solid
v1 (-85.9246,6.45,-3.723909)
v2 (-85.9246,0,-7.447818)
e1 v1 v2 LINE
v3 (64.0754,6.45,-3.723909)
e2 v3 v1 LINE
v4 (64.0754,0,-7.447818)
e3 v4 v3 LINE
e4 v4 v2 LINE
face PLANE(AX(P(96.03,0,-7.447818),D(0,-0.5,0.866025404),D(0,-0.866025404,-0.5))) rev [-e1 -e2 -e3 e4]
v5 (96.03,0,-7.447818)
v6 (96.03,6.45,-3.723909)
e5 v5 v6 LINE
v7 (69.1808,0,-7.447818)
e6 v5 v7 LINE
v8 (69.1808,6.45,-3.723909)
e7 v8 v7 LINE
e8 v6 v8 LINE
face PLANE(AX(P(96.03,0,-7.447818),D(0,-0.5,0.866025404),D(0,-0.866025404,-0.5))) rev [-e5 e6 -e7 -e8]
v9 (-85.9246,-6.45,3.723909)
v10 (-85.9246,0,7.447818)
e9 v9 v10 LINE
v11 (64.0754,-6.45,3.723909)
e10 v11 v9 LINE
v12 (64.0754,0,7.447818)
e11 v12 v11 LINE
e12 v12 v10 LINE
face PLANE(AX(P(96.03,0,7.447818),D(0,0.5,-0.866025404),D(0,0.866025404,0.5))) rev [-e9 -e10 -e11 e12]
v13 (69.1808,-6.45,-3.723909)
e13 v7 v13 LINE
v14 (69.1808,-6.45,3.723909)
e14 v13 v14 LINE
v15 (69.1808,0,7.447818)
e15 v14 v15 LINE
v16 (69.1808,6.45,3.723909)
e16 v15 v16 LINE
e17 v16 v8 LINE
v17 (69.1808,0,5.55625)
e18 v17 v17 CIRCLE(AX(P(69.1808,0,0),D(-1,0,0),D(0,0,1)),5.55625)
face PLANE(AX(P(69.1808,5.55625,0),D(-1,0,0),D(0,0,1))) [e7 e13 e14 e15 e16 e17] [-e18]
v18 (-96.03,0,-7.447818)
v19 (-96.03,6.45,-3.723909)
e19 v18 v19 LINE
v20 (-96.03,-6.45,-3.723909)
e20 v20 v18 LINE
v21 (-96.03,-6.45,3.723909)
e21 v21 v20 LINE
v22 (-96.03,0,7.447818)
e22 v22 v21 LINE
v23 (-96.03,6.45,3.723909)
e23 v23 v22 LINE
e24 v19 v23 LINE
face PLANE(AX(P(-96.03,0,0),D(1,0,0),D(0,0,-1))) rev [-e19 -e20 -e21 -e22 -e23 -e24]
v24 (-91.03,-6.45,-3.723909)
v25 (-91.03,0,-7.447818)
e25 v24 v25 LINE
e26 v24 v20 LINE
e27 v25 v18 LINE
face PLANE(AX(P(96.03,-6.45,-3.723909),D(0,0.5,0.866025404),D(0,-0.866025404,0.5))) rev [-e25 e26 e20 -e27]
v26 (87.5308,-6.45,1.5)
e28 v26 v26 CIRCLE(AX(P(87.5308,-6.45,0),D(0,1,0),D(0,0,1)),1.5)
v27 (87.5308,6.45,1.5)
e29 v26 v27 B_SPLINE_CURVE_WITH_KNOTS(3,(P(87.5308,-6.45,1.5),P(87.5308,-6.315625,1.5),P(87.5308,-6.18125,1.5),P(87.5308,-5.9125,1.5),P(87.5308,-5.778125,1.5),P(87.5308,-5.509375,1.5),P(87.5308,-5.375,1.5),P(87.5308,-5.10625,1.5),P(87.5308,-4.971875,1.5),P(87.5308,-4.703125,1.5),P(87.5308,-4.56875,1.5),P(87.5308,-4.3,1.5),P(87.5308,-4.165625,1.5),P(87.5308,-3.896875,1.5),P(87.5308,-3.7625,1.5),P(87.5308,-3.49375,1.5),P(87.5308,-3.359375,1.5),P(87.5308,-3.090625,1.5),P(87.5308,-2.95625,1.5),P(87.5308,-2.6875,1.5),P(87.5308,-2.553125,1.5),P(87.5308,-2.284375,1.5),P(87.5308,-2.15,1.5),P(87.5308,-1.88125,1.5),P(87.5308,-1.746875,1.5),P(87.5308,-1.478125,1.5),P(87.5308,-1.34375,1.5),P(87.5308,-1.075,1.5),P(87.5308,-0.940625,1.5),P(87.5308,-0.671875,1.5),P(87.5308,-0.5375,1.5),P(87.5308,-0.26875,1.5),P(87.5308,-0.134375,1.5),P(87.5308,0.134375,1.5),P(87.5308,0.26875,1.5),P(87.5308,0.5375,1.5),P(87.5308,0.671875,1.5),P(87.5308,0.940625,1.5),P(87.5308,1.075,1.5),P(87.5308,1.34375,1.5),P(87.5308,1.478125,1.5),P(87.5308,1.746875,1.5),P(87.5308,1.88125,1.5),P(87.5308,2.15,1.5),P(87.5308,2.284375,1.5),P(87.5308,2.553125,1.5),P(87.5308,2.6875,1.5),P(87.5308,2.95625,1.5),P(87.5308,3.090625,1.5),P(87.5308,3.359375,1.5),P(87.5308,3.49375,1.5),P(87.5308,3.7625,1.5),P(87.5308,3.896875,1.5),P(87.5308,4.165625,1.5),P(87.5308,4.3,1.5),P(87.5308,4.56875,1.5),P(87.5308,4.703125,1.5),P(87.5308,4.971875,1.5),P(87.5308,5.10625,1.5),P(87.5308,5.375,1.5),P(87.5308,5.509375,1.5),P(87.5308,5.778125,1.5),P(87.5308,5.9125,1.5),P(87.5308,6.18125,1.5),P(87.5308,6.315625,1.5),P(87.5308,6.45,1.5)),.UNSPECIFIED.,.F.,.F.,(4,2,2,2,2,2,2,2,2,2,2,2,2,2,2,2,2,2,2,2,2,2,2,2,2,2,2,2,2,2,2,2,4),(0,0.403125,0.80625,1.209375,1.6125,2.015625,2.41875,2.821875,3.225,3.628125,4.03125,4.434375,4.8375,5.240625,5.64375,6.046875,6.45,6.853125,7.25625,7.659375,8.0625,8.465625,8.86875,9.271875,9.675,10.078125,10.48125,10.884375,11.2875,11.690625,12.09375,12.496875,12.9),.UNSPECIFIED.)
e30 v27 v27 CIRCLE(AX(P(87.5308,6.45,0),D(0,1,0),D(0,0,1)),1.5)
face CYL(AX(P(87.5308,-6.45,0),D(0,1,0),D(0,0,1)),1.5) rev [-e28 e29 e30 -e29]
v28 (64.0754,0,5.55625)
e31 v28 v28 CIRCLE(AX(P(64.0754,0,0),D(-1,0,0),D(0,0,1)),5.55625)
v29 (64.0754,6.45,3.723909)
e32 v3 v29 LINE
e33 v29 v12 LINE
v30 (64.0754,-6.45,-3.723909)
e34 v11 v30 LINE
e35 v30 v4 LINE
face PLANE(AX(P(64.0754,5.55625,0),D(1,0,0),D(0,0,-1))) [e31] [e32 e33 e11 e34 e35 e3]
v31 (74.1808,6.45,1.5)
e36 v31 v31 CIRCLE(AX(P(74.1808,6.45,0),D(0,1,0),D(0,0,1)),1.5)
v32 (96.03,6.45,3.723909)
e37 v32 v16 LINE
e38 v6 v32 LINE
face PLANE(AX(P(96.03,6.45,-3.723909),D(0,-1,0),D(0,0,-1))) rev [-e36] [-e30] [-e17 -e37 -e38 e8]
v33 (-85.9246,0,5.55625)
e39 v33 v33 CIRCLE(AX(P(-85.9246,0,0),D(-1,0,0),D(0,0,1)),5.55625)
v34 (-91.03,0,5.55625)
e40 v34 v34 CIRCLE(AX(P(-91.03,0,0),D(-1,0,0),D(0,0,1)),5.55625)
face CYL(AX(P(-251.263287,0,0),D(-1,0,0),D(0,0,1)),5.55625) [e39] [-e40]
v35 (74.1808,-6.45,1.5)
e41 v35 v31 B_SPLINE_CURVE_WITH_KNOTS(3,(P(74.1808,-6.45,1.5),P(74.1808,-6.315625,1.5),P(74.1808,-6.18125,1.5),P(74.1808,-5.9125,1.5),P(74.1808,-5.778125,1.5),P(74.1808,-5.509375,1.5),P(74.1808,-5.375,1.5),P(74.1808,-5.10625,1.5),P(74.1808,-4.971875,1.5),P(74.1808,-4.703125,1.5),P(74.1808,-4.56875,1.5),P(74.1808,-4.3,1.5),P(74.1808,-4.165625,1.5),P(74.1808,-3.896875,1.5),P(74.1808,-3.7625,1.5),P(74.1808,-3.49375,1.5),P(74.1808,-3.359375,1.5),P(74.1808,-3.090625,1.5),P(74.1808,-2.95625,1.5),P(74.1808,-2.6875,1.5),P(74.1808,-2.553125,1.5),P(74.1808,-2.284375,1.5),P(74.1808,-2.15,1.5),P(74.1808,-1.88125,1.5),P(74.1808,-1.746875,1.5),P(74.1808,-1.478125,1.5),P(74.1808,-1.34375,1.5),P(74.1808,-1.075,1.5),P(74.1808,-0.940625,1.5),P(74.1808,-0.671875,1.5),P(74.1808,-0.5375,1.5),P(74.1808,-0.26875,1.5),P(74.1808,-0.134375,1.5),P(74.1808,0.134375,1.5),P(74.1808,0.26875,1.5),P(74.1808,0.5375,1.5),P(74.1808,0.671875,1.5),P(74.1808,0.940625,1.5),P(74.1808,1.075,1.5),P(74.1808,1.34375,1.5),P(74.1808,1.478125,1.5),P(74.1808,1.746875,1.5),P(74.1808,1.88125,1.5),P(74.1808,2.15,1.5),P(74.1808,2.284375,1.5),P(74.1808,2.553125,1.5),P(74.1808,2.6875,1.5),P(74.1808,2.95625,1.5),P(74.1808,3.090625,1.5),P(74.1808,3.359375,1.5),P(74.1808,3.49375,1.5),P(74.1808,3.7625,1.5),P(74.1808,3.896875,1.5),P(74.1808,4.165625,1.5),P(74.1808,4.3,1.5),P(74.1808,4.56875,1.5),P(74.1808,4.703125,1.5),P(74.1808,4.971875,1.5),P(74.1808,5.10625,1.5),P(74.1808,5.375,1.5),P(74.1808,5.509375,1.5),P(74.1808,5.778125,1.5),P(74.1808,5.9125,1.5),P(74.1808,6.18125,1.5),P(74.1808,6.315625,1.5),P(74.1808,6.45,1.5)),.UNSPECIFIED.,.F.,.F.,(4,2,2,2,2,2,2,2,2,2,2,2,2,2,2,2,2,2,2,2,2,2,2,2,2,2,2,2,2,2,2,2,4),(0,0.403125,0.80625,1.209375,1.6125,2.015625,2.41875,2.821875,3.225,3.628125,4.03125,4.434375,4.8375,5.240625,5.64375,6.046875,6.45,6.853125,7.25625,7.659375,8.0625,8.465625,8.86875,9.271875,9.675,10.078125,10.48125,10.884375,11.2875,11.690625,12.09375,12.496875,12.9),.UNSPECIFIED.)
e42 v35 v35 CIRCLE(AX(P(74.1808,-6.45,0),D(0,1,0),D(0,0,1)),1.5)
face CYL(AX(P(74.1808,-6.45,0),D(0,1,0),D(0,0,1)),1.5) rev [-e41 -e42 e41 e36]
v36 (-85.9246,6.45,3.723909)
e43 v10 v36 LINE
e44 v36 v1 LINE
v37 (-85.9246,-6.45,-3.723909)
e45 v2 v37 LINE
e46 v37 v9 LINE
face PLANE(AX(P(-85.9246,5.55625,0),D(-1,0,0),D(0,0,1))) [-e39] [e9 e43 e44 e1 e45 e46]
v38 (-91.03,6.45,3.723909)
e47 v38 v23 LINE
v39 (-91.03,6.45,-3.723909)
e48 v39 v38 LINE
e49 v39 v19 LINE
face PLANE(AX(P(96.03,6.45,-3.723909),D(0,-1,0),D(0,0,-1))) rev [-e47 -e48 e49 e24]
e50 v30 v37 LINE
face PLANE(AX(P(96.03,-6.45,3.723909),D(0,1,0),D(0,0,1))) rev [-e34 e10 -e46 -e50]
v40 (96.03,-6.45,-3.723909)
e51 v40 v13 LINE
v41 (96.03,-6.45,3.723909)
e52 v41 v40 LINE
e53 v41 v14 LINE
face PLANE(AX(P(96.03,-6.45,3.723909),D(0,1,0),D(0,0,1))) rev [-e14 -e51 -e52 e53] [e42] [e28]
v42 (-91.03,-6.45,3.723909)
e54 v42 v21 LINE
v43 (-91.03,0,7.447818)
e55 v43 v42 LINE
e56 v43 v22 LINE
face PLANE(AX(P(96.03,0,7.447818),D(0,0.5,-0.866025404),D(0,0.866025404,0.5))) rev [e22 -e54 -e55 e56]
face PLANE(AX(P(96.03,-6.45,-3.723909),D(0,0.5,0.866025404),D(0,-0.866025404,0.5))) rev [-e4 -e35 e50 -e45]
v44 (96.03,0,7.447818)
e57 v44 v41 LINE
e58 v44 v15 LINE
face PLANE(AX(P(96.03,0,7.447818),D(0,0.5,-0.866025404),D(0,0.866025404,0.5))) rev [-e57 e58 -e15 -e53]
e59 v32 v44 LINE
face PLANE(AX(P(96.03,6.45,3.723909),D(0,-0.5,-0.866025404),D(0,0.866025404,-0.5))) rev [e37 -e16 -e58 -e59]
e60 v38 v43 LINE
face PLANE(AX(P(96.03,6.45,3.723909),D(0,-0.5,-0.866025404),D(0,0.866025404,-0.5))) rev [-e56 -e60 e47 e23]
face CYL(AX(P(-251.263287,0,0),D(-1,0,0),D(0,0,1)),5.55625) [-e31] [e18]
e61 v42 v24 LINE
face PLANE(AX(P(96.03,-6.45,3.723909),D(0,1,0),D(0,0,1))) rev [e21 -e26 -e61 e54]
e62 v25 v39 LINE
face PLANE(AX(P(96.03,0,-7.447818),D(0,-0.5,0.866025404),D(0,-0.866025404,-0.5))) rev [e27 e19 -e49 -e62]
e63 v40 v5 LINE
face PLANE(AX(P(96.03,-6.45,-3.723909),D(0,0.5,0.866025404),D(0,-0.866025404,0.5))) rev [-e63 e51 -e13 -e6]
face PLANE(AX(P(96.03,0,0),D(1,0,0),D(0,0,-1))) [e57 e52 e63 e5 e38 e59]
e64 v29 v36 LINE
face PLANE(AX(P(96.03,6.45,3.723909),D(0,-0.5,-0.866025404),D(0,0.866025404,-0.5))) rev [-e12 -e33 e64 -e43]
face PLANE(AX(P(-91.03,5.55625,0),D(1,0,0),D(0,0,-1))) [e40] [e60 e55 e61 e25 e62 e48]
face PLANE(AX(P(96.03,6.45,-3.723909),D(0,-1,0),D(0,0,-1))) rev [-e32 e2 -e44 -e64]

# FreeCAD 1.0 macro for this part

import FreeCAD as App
import Part
import Sketcher

V = App.Vector
Q = App.Units.Quantity


def add_polygon(sketch, points):
    """Adds a closed chain of lines whose ends are joined by coincident constraints."""
    first, n = sketch.GeometryCount, len(points)
    for a, b in zip(points, points[1:] + points[:1]):
        sketch.addGeometry(Part.LineSegment(App.Vector(*a, 0), App.Vector(*b, 0)), False)
    for i in range(n):
        sketch.addConstraint(Sketcher.Constraint("Coincident", first + i, 2, first + (i + 1) % n, 1))

doc = App.newDocument("Part")
body = doc.addObject("PartDesign::Body", "Body")

# Sketch on YZ plane
sketch1 = body.newObject("Sketcher::SketchObject", "Sketch")
sketch1.AttachmentSupport = (doc.getObject("YZ_Plane"), [""])
sketch1.MapMode = "FlatFace"
add_polygon(sketch1, [(0, -7), (6, -4), (6, 4), (0, 7), (-6, 4), (-6, -4)])  # lines 0-5
sketch1.addConstraint([
    Sketcher.Constraint("Vertical", 1),
    Sketcher.Constraint("Vertical", 4),
    Sketcher.Constraint("Symmetric", 0, 2, 3, 2, -1, 1),
    Sketcher.Constraint("Symmetric", 2, 2, 5, 2, -1, 1),
    Sketcher.Constraint("PointOnObject", 2, 2, -2),
    Sketcher.Constraint("Parallel", 2, 5),
    Sketcher.Constraint("Horizontal", 1, 2, 3, 2),
    Sketcher.Constraint("Angle", 0, Q("30 deg")),
    Sketcher.Constraint("DistanceX", 3, 2, 1, 2, Q("12.9 mm")),
    Sketcher.Constraint("DistanceY", 1, 1, 1, 2, Q("7.447818 mm")),
])
pad1 = body.newObject("PartDesign::Pad", "Pad")
pad1.Profile = sketch1
pad1.Length = 192.06
pad1.Midplane = True

# Sketch on XY plane
sketch2 = body.newObject("Sketcher::SketchObject", "Sketch001")
sketch2.AttachmentSupport = (doc.getObject("XY_Plane"), [""])
sketch2.MapMode = "FlatFace"
add_polygon(sketch2, [(-91, 11), (-91, 6), (-86, 6), (-86, 11)])  # lines 0-3
add_polygon(sketch2, [(64, 11), (64, 6), (69, 6), (69, 11)])  # lines 4-7
sketch2.addConstraint([
    Sketcher.Constraint("Vertical", 0),
    Sketcher.Constraint("Horizontal", 1),
    Sketcher.Constraint("Vertical", 2),
    Sketcher.Constraint("Horizontal", 3),
    Sketcher.Constraint("Vertical", 4),
    Sketcher.Constraint("Horizontal", 5),
    Sketcher.Constraint("Vertical", 6),
    Sketcher.Constraint("Horizontal", 7),
    Sketcher.Constraint("Horizontal", 1, 2, 4, 2),
    Sketcher.Constraint("Horizontal", 3, 2, 6, 2),
    Sketcher.Constraint("Equal", 3, 5),
    Sketcher.Constraint("DistanceX", 1, 2, 4, 2, Q("150 mm")),
    Sketcher.Constraint("DistanceX", 0, 2, -1, 1, Q("91.03 mm")),
    Sketcher.Constraint("DistanceY", -1, 1, 2, 2, Q("11.45 mm")),
    Sketcher.Constraint("DistanceX", 1, 1, 1, 2, Q("5.1054 mm")),
    Sketcher.Constraint("DistanceY", 0, 2, 0, 1, Q("5.89375 mm")),
])
groove = body.newObject("PartDesign::Groove", "Groove")
groove.Profile = sketch2
groove.ReferenceAxis = (sketch2, ["H_Axis"])
groove.Angle = 360

# Sketch on XZ plane
sketch3 = body.newObject("Sketcher::SketchObject", "Sketch002")
sketch3.AttachmentSupport = (doc.getObject("XZ_Plane"), [""])
sketch3.MapMode = "FlatFace"
sketch3.AttachmentOffset = App.Placement(V(0, 0, -6.45), App.Rotation())
sketch3.addGeometry([
    Part.Circle(V(74.2, 0, 0), V(0, 0, 1), 1.5),
    Part.Circle(V(87.5, 0, 0), V(0, 0, 1), 1.5),
], False)
sketch3.addConstraint([
    Sketcher.Constraint("Equal", 0, 1),
    Sketcher.Constraint("PointOnObject", 0, 3, -1),
    Sketcher.Constraint("PointOnObject", 1, 3, -1),
    Sketcher.Constraint("Diameter", 0, Q("3 mm")),
    Sketcher.Constraint("DistanceX", 0, 3, 1, 3, Q("13.35 mm")),
    Sketcher.Constraint("DistanceX", -1, 1, 0, 3, Q("74.1808 mm")),
])
pocket1 = body.newObject("PartDesign::Pocket", "Pocket")
pocket1.Profile = sketch3
pocket1.Type = "ThroughAll"
pocket1.Reversed = True

doc.recompute()
